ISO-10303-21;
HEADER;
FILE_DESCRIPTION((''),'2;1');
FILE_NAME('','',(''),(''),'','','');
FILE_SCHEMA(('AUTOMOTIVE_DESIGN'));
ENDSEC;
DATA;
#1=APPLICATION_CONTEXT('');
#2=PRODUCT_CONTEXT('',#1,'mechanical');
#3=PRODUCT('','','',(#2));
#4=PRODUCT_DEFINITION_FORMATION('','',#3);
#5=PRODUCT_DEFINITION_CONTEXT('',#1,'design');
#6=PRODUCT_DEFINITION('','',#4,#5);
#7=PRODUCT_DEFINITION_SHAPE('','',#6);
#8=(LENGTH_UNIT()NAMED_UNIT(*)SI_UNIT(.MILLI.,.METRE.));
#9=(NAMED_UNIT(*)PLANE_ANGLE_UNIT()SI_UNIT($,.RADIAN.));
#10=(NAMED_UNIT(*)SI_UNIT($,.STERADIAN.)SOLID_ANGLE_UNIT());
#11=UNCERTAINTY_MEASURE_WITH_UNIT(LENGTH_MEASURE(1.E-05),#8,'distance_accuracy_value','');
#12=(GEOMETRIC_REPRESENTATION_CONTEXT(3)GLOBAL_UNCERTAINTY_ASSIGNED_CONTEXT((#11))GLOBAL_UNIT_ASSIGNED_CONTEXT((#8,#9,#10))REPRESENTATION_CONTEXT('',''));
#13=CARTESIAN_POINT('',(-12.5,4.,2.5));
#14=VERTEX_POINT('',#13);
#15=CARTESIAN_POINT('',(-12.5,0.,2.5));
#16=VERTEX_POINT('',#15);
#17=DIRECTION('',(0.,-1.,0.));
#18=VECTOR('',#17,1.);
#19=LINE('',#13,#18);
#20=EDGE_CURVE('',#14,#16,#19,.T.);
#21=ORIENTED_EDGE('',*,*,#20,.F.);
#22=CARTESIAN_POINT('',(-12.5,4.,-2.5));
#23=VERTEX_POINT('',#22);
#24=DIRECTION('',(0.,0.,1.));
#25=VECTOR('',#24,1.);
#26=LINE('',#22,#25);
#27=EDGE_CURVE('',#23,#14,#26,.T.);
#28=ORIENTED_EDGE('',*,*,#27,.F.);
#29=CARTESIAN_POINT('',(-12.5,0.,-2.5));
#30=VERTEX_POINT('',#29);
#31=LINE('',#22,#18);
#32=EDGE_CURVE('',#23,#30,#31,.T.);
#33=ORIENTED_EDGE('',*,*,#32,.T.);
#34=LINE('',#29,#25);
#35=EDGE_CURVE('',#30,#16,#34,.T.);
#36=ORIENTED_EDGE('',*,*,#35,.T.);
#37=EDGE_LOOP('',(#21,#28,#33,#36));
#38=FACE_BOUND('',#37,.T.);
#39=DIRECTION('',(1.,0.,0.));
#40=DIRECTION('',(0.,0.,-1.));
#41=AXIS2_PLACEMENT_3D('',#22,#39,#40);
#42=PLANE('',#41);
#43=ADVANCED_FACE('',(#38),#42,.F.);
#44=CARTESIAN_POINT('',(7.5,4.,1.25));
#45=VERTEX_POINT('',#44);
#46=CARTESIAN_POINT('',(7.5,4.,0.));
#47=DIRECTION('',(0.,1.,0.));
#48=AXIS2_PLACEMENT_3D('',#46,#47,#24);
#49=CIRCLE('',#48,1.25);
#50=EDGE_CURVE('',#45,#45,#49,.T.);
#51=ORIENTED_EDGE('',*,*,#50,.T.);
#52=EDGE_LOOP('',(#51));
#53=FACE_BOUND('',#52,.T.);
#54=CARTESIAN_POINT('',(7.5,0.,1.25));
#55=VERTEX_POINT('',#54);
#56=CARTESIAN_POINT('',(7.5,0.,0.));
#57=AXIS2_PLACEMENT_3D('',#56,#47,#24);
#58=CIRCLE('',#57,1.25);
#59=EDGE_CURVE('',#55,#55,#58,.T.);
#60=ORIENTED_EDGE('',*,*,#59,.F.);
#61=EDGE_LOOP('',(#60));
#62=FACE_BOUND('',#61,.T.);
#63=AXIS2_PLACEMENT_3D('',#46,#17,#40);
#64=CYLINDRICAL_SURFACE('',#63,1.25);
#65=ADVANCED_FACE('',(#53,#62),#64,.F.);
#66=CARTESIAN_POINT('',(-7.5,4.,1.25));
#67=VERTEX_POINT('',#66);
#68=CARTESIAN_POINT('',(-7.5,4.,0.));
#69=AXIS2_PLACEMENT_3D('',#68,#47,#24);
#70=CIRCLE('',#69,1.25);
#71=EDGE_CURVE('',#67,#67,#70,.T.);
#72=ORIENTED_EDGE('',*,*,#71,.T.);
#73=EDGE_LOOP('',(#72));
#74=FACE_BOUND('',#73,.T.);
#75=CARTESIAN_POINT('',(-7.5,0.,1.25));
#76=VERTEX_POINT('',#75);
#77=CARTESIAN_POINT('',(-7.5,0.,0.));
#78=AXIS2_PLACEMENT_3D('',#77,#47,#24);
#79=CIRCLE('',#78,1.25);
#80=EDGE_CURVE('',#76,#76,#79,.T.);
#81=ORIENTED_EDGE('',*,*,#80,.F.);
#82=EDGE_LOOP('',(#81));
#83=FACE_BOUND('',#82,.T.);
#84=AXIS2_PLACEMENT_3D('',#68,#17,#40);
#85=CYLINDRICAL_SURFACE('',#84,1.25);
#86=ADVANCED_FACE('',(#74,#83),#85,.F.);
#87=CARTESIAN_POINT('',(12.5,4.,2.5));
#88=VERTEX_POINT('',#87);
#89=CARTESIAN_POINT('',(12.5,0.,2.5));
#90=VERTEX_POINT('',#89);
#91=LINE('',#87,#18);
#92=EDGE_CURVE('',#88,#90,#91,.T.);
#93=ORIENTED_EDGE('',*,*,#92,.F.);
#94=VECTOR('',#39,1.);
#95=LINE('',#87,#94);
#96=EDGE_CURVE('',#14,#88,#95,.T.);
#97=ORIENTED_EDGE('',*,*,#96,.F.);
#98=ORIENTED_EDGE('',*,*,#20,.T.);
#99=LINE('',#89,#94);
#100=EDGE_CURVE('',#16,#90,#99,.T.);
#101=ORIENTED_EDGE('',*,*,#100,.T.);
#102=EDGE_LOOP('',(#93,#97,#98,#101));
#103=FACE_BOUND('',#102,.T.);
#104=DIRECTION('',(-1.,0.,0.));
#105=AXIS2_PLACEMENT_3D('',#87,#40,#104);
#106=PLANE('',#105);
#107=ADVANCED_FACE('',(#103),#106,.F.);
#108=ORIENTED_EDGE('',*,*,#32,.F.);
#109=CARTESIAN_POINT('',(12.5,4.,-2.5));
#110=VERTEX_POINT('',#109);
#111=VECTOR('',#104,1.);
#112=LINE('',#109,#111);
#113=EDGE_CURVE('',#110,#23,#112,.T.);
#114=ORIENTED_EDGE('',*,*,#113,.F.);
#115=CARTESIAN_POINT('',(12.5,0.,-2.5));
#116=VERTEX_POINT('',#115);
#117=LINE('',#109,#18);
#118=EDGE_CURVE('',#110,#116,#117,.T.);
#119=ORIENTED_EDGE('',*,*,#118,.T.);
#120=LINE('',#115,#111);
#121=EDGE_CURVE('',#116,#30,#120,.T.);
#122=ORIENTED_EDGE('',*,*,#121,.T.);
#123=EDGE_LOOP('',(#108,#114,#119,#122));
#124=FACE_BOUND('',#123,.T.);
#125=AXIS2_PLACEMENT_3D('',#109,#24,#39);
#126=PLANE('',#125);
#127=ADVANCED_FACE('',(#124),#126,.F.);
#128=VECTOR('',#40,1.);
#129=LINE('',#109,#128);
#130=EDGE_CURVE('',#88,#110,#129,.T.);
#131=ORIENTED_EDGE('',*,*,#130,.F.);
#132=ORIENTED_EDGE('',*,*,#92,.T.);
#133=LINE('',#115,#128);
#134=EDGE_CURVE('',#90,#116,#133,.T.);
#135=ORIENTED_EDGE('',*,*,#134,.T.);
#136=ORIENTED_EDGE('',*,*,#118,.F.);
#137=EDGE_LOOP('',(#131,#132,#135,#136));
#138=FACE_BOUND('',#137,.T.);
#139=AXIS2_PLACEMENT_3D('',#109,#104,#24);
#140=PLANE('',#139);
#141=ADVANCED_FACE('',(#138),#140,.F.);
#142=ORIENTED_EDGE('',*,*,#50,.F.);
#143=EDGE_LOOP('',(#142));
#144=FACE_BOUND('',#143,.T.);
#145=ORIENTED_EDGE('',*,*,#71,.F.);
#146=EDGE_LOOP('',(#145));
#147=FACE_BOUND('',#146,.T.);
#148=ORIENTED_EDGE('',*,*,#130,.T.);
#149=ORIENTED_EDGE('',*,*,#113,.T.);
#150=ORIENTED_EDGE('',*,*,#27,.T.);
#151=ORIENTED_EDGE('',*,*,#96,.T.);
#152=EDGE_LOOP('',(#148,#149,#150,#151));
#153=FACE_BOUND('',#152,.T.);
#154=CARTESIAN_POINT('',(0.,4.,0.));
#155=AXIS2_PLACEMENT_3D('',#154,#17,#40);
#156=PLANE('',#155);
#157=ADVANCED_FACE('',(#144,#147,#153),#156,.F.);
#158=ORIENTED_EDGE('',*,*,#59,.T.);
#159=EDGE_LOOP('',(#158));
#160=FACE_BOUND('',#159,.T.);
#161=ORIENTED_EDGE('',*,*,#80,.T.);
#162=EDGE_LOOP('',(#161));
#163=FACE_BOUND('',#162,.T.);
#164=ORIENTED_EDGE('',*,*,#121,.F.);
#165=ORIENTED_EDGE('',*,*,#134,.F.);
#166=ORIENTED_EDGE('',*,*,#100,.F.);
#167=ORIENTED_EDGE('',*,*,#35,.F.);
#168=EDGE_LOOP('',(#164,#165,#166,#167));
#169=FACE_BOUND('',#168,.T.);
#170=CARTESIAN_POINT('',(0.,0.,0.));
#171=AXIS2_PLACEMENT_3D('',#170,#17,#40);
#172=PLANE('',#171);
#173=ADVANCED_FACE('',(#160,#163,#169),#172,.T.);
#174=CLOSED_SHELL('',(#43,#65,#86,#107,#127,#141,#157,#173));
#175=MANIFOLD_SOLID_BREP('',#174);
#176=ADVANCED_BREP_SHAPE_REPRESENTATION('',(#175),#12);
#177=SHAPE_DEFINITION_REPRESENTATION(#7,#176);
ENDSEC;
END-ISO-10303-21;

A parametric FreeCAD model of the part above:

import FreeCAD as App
import Part
import Sketcher


def add_polygon(sketch, points):
    """Adds a closed chain of lines whose ends are joined by coincident constraints."""
    first, n = sketch.GeometryCount, len(points)
    for a, b in zip(points, points[1:] + points[:1]):
        sketch.addGeometry(Part.LineSegment(App.Vector(*a, 0), App.Vector(*b, 0)), False)
    for i in range(n):
        sketch.addConstraint(Sketcher.Constraint("Coincident", first + i, 2, first + (i + 1) % n, 1))

doc = App.newDocument("Part")
body = doc.addObject("PartDesign::Body", "Body")

# Sketch on XZ plane
sketch1 = body.newObject("Sketcher::SketchObject", "Sketch")
sketch1.AttachmentSupport = (doc.getObject("XZ_Plane"), [""])
sketch1.MapMode = "FlatFace"
add_polygon(sketch1, [(-12.5, -2.5), (-12.5, 2.5), (12.5, 2.5), (12.5, -2.5)])  # lines 0-3
sketch1.addGeometry(Part.Circle(App.Vector(-7.5, 0, 0), App.Vector(0, 0, 1), 1.2), False)  # 4
sketch1.addGeometry(Part.Circle(App.Vector(7.5, 0, 0), App.Vector(0, 0, 1), 1.2), False)  # 5
sketch1.addConstraint([
    Sketcher.Constraint("Vertical", 0),
    Sketcher.Constraint("Horizontal", 1),
    Sketcher.Constraint("Vertical", 2),
    Sketcher.Constraint("Horizontal", 3),
    Sketcher.Constraint("Equal", 4, 5),
    Sketcher.Constraint("Symmetric", 4, 3, 5, 3, -1, 1),
    Sketcher.Constraint("Symmetric", 0, 2, 2, 2, -1, 1),
    Sketcher.Constraint("PointOnObject", 4, 3, -1),
    Sketcher.Constraint("Diameter", 4, 2.5),
    Sketcher.Constraint("DistanceX", 1, 1, 1, 2, 25.0),
    Sketcher.Constraint("DistanceY", 0, 1, 0, 2, 5.0),
    Sketcher.Constraint("DistanceX", 4, 3, 5, 3, 15.0),
])
pad1 = body.newObject("PartDesign::Pad", "Pad")
pad1.Profile = sketch1
pad1.Length = 4
pad1.Reversed = True

doc.recompute()
